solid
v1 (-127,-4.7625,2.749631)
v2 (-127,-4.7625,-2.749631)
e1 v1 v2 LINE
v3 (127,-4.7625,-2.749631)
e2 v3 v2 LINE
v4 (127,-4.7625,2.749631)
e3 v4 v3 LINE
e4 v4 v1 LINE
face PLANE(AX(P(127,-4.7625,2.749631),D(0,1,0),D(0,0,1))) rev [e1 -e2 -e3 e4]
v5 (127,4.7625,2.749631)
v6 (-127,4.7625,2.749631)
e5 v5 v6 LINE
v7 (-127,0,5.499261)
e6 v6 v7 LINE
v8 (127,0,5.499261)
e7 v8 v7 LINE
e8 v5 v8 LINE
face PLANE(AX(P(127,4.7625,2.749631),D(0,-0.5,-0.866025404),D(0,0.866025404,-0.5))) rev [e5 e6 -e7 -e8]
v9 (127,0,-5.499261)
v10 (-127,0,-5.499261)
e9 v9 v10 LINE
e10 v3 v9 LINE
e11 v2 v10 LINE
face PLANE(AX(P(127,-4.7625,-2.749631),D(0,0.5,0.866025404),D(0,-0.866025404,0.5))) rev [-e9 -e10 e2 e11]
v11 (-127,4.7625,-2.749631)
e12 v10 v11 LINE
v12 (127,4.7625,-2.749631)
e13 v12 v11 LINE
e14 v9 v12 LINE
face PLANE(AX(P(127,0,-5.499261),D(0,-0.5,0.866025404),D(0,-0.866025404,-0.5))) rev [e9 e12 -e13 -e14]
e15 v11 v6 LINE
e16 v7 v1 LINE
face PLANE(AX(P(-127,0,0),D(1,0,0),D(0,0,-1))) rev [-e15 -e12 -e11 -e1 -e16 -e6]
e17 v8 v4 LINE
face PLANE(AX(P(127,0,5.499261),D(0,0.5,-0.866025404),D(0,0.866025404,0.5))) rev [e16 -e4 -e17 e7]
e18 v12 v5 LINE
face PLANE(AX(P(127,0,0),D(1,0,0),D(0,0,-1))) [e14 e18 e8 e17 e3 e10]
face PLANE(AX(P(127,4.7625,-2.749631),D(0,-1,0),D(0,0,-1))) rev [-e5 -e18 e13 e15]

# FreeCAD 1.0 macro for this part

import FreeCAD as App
import Part
import Sketcher
from FreeCAD import Vector
Q = App.Units.Quantity


def add_polygon(sketch, points):
    """Adds a closed chain of lines whose ends are joined by coincident constraints."""
    first, n = sketch.GeometryCount, len(points)
    for a, b in zip(points, points[1:] + points[:1]):
        sketch.addGeometry(Part.LineSegment(App.Vector(*a, 0), App.Vector(*b, 0)), False)
    for i in range(n):
        sketch.addConstraint(Sketcher.Constraint("Coincident", first + i, 2, first + (i + 1) % n, 1))

doc = App.newDocument("Part")
params = doc.addObject("Spreadsheet::Sheet", "Params")
for row, (alias, value) in enumerate([
    ("pad1_length", "10 in"),
], start=1):
    params.set(f"A{row}", alias)
    params.set(f"B{row}", "=" + value)
    params.setAlias(f"B{row}", alias)

body = doc.addObject("PartDesign::Body", "Body")

# Sketch on YZ plane
sketch1 = body.newObject("Sketcher::SketchObject", "Sketch")
sketch1.AttachmentSupport = (doc.getObject("YZ_Plane"), [""])
sketch1.MapMode = "FlatFace"
add_polygon(sketch1, [(-5, -3), (0, -5), (5, -3), (5, 3), (0, 5), (-5, 3)])  # lines 0-5
sketch1.addConstraint([
    Sketcher.Constraint("Vertical", 2),
    Sketcher.Constraint("Vertical", 5),
    Sketcher.Constraint("Symmetric", 0, 2, 3, 2, -1, 1),
    Sketcher.Constraint("Symmetric", 1, 2, 4, 2, -1, 1),
    Sketcher.Constraint("PointOnObject", 0, 2, -2),
    Sketcher.Constraint("Parallel", 0, 3),
    Sketcher.Constraint("Horizontal", 2, 2, 4, 2),
    Sketcher.Constraint("Angle", 0, Q("-30 deg")),
    Sketcher.Constraint("DistanceX", -1, 1, 1, 2, Q("0.1875 in")),
    Sketcher.Constraint("DistanceY", 2, 1, 2, 2, Q("5.499261 mm")),
])
pad1 = body.newObject("PartDesign::Pad", "Pad")
pad1.Profile = sketch1
pad1.setExpression("Length", "Params.pad1_length")
pad1.Midplane = True

doc.recompute()
